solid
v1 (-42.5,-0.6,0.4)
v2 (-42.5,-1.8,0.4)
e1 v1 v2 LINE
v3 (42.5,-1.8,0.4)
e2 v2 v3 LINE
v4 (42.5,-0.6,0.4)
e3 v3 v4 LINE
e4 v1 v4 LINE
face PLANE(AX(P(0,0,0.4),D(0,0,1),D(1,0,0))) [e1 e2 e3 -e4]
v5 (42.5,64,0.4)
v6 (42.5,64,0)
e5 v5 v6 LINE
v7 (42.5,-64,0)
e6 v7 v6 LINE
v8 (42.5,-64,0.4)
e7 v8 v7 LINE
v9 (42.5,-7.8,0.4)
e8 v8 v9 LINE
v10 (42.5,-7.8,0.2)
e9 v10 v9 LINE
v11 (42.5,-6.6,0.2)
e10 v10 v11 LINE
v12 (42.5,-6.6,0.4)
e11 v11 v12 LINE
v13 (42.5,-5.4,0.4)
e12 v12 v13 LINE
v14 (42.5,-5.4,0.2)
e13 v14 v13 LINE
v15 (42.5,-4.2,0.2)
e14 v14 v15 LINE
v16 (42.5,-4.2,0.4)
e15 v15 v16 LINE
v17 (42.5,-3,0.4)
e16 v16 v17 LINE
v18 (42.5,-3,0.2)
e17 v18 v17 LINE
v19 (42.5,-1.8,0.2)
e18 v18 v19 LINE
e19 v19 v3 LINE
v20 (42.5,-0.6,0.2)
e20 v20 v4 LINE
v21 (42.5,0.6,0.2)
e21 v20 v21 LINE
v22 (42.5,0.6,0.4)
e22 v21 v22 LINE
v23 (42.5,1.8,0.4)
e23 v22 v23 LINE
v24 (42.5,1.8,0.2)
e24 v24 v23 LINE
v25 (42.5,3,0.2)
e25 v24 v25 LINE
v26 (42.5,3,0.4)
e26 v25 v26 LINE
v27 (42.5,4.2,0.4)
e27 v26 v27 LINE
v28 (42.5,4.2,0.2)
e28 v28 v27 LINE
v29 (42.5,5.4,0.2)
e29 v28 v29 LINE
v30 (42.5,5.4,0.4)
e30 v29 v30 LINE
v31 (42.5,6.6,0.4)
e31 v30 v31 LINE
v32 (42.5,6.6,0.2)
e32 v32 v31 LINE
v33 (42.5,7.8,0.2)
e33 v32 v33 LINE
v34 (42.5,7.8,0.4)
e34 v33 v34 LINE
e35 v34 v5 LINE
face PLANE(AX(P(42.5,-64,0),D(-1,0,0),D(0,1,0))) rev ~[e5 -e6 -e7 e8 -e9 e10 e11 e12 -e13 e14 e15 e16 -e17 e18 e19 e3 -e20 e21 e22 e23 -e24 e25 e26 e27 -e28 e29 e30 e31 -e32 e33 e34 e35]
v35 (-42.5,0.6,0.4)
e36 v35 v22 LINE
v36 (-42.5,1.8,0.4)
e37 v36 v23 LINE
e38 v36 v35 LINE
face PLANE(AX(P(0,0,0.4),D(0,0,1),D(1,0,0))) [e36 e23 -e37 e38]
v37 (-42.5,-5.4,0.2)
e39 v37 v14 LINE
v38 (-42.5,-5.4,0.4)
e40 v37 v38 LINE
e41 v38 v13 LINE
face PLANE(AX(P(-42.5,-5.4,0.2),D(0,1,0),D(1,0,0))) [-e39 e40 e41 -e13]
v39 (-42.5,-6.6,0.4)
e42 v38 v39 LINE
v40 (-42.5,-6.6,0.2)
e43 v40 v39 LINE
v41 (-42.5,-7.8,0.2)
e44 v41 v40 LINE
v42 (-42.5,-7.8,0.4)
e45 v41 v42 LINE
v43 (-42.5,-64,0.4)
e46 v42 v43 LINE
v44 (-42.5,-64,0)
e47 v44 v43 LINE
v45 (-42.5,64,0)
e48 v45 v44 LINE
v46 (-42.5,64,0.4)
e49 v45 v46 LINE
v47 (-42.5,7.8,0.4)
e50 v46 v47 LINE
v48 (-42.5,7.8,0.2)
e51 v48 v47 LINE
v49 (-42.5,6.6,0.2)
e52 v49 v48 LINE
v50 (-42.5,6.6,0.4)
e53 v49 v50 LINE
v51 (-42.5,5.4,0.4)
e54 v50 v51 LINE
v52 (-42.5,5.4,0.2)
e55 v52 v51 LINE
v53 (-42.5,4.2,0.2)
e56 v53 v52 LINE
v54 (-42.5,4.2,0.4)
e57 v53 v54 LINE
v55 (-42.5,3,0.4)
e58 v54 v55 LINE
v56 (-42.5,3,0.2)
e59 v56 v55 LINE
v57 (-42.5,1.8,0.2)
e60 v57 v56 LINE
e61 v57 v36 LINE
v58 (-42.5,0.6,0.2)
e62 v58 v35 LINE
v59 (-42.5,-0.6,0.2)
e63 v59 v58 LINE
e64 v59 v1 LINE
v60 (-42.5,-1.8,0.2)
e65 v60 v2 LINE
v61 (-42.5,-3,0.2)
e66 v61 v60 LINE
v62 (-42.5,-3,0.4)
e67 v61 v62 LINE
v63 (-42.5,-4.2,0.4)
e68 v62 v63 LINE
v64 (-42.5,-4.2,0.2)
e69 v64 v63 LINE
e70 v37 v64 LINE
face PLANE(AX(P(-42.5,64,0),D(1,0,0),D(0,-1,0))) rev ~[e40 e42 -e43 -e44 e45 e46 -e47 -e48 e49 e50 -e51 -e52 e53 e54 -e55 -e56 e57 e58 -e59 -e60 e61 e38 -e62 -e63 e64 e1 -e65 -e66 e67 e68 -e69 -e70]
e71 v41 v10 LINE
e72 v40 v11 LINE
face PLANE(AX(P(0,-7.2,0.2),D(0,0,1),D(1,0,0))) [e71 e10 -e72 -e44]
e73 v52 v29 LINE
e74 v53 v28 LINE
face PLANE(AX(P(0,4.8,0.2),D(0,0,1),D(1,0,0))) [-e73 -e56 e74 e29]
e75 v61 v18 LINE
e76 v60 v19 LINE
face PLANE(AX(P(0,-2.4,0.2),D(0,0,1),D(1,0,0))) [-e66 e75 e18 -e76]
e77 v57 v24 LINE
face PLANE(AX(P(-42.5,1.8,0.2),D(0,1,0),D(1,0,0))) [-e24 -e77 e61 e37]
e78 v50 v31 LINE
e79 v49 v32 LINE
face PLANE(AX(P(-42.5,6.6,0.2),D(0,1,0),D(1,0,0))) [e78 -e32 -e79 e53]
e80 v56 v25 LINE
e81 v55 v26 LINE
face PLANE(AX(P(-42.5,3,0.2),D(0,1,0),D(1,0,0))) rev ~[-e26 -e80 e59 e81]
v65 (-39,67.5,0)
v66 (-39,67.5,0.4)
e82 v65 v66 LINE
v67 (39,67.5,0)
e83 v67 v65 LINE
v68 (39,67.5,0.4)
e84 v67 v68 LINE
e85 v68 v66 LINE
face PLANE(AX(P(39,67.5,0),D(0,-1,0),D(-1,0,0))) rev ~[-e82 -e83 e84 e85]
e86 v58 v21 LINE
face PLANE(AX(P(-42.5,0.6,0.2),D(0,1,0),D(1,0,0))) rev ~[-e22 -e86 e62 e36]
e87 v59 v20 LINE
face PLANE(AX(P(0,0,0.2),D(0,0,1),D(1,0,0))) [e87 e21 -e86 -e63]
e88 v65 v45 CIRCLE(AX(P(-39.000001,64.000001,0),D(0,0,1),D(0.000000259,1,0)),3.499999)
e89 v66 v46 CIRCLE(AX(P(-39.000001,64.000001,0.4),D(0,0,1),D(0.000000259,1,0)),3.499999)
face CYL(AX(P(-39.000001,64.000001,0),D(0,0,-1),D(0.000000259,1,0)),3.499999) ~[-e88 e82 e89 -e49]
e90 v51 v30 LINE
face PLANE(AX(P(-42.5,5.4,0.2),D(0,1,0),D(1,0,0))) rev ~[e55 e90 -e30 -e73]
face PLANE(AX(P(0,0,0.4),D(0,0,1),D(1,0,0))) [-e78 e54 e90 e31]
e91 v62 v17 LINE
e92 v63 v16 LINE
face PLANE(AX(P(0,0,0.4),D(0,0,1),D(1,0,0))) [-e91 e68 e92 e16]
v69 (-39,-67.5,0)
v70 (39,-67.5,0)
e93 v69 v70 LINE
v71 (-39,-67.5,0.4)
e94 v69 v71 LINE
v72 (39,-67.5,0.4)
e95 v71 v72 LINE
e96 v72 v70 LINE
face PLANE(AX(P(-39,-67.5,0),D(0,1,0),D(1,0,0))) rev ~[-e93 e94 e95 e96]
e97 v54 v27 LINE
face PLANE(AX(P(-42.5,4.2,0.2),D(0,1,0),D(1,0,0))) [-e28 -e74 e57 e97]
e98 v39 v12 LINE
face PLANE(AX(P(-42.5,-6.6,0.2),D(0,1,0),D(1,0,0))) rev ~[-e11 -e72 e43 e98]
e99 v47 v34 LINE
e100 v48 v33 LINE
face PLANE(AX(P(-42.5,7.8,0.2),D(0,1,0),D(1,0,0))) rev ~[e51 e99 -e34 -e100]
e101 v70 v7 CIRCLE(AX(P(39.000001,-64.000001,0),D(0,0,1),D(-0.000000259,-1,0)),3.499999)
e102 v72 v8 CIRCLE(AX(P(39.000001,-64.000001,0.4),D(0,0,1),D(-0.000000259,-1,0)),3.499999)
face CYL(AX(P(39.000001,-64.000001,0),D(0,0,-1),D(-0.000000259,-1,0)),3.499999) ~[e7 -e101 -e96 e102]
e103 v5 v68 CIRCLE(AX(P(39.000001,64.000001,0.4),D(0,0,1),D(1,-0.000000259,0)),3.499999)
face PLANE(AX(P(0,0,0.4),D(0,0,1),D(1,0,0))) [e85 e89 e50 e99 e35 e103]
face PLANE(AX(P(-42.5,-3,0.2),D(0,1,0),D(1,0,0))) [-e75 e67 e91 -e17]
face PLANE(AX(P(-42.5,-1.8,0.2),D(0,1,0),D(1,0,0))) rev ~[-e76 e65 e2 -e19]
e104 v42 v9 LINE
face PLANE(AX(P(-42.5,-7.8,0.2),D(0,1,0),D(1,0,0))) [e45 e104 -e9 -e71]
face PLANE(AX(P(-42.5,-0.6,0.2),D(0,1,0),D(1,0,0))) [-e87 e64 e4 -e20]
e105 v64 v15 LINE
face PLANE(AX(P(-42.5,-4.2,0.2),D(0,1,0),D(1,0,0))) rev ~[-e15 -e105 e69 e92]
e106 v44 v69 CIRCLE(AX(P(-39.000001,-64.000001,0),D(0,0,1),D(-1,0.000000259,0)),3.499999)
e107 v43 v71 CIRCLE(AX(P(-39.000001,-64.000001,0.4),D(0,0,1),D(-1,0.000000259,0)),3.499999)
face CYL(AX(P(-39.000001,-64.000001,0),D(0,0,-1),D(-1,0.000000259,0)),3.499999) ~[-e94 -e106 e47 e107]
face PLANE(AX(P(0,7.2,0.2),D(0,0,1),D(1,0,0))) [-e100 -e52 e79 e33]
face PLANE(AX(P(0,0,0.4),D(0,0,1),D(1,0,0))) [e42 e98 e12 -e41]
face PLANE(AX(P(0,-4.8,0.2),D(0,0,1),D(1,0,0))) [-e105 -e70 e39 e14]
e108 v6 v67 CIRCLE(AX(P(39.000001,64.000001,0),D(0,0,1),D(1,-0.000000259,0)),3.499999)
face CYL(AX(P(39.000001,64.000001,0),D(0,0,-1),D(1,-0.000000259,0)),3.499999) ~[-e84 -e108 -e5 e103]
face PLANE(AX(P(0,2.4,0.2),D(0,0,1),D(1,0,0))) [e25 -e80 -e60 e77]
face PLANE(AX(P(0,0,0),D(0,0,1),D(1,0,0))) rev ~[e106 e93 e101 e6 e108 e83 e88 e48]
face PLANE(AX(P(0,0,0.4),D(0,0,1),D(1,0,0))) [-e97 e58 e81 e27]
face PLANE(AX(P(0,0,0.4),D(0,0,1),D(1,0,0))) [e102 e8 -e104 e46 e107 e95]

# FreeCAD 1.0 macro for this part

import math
import FreeCAD as App
import Part
import Sketcher


def add_polygon(sketch, points):
    """Adds a closed chain of lines whose ends are joined by coincident constraints."""
    first, n = sketch.GeometryCount, len(points)
    for a, b in zip(points, points[1:] + points[:1]):
        sketch.addGeometry(Part.LineSegment(App.Vector(*a, 0), App.Vector(*b, 0)), False)
    for i in range(n):
        sketch.addConstraint(Sketcher.Constraint("Coincident", first + i, 2, first + (i + 1) % n, 1))

doc = App.newDocument("Part")
body = doc.addObject("PartDesign::Body", "Body")

# Sketch on XY plane
sketch1 = body.newObject("Sketcher::SketchObject", "Sketch")
sketch1.AttachmentSupport = (doc.getObject("XY_Plane"), [""])
sketch1.MapMode = "FlatFace"
sketch1.addGeometry([
    Part.ArcOfCircle(Part.Circle(App.Vector(39.000001, 64.000001, 0), App.Vector(0, 0, 1), 3.499999), math.radians(-0.000015), math.radians(90.000015)),  # 0
    Part.LineSegment(App.Vector(39, 67.5, 0), App.Vector(-39, 67.5, 0)),  # 1
    Part.ArcOfCircle(Part.Circle(App.Vector(-39.000001, 64.000001, 0), App.Vector(0, 0, 1), 3.499999), math.radians(89.999985), math.radians(180.000015)),  # 2
    Part.LineSegment(App.Vector(-42.5, 64, 0), App.Vector(-42.5, -64, 0)),  # 3
    Part.ArcOfCircle(Part.Circle(App.Vector(-39.000001, -64.000001, 0), App.Vector(0, 0, 1), 3.499999), math.radians(179.999985), math.radians(270.000015)),  # 4
    Part.LineSegment(App.Vector(-39, -67.5, 0), App.Vector(39, -67.5, 0)),  # 5
    Part.ArcOfCircle(Part.Circle(App.Vector(39.000001, -64.000001, 0), App.Vector(0, 0, 1), 3.499999), math.radians(-90.000015), math.radians(0.000015)),  # 6
    Part.LineSegment(App.Vector(42.5, -64, 0), App.Vector(42.5, 64, 0)),  # 7
], False)
sketch1.addConstraint([
    Sketcher.Constraint("Tangent", 0, 2, 1, 1),
    Sketcher.Constraint("Tangent", 1, 2, 2, 1),
    Sketcher.Constraint("Tangent", 2, 2, 3, 1),
    Sketcher.Constraint("Tangent", 3, 2, 4, 1),
    Sketcher.Constraint("Tangent", 4, 2, 5, 1),
    Sketcher.Constraint("Tangent", 5, 2, 6, 1),
    Sketcher.Constraint("Tangent", 6, 2, 7, 1),
    Sketcher.Constraint("Tangent", 7, 2, 0, 1),
    Sketcher.Constraint("Horizontal", 1),
    Sketcher.Constraint("Vertical", 3),
    Sketcher.Constraint("Horizontal", 5),
    Sketcher.Constraint("Vertical", 7),
    Sketcher.Constraint("Equal", 0, 2),
    Sketcher.Constraint("Equal", 2, 4),
    Sketcher.Constraint("Equal", 4, 6),
    Sketcher.Constraint("Symmetric", 0, 3, 4, 3, -1, 1),
    Sketcher.Constraint("Radius", 0, 3.499999),
    Sketcher.Constraint("DistanceX", 1, 2, 1, 1, 78.0),
    Sketcher.Constraint("DistanceY", 3, 2, 3, 1, 128.0),
])
pad1 = body.newObject("PartDesign::Pad", "Pad")
pad1.Profile = sketch1
pad1.Length = 0.2

# Sketch on XY plane
sketch2 = body.newObject("Sketcher::SketchObject", "Sketch001")
sketch2.AttachmentSupport = (doc.getObject("XY_Plane"), [""])
sketch2.MapMode = "FlatFace"
sketch2.addGeometry([
    Part.ArcOfCircle(Part.Circle(App.Vector(39.000001, 64.000001, 0), App.Vector(0, 0, 1), 3.499999), math.radians(-0.000015), math.radians(90.000015)),  # 0
    Part.LineSegment(App.Vector(39, 67.5, 0), App.Vector(-39, 67.5, 0)),  # 1
    Part.ArcOfCircle(Part.Circle(App.Vector(-39.000001, 64.000001, 0), App.Vector(0, 0, 1), 3.499999), math.radians(89.999985), math.radians(180.000015)),  # 2
    Part.LineSegment(App.Vector(-42.5, 64, 0), App.Vector(-42.5, -64, 0)),  # 3
    Part.ArcOfCircle(Part.Circle(App.Vector(-39.000001, -64.000001, 0), App.Vector(0, 0, 1), 3.499999), math.radians(179.999985), math.radians(270.000015)),  # 4
    Part.LineSegment(App.Vector(-39, -67.5, 0), App.Vector(39, -67.5, 0)),  # 5
    Part.ArcOfCircle(Part.Circle(App.Vector(39.000001, -64.000001, 0), App.Vector(0, 0, 1), 3.499999), math.radians(-90.000015), math.radians(0.000015)),  # 6
    Part.LineSegment(App.Vector(42.5, -64, 0), App.Vector(42.5, 64, 0)),  # 7
], False)
sketch2.addConstraint([
    Sketcher.Constraint("Tangent", 0, 2, 1, 1),
    Sketcher.Constraint("Tangent", 1, 2, 2, 1),
    Sketcher.Constraint("Tangent", 2, 2, 3, 1),
    Sketcher.Constraint("Tangent", 3, 2, 4, 1),
    Sketcher.Constraint("Tangent", 4, 2, 5, 1),
    Sketcher.Constraint("Tangent", 5, 2, 6, 1),
    Sketcher.Constraint("Tangent", 6, 2, 7, 1),
    Sketcher.Constraint("Tangent", 7, 2, 0, 1),
    Sketcher.Constraint("Horizontal", 1),
    Sketcher.Constraint("Vertical", 3),
    Sketcher.Constraint("Horizontal", 5),
    Sketcher.Constraint("Vertical", 7),
    Sketcher.Constraint("Equal", 0, 2),
    Sketcher.Constraint("Equal", 2, 4),
    Sketcher.Constraint("Equal", 4, 6),
    Sketcher.Constraint("Symmetric", 0, 3, 4, 3, -1, 1),
    Sketcher.Constraint("Radius", 0, 3.499999),
    Sketcher.Constraint("DistanceX", 1, 2, 1, 1, 78.0),
    Sketcher.Constraint("DistanceY", 3, 2, 3, 1, 128.0),
])
pad2 = body.newObject("PartDesign::Pad", "Pad001")
pad2.Profile = sketch2
pad2.Length = 0.4

# Sketch on XY plane
sketch3 = body.newObject("Sketcher::SketchObject", "Sketch002")
sketch3.AttachmentSupport = (doc.getObject("XY_Plane"), [""])
sketch3.MapMode = "FlatFace"
sketch3.AttachmentOffset = App.Placement(App.Vector(0, 0, 0.2), App.Rotation())
add_polygon(sketch3, [(-42.5, 0.6), (-42.5, -0.6), (42.5, -0.6), (42.5, 0.6)])  # lines 0-3
add_polygon(sketch3, [(-42.5, 3), (-42.5, 1.8), (42.5, 1.8), (42.5, 3)])  # lines 4-7
add_polygon(sketch3, [(-42.5, 5.4), (-42.5, 4.2), (42.5, 4.2), (42.5, 5.4)])  # lines 8-11
add_polygon(sketch3, [(-42.5, -1.8), (-42.5, -3), (42.5, -3), (42.5, -1.8)])  # lines 12-15
add_polygon(sketch3, [(-42.5, -4.2), (-42.5, -5.4), (42.5, -5.4), (42.5, -4.2)])  # lines 16-19
add_polygon(sketch3, [(-42.5, 7.8), (-42.5, 6.6), (42.5, 6.6), (42.5, 7.8)])  # lines 20-23
add_polygon(sketch3, [(-42.5, -6.6), (-42.5, -7.8), (42.5, -7.8), (42.5, -6.6)])  # lines 24-27
sketch3.addConstraint([
    Sketcher.Constraint("Vertical", 0),
    Sketcher.Constraint("Horizontal", 1),
    Sketcher.Constraint("Vertical", 2),
    Sketcher.Constraint("Horizontal", 3),
    Sketcher.Constraint("Vertical", 4),
    Sketcher.Constraint("Horizontal", 5),
    Sketcher.Constraint("Vertical", 6),
    Sketcher.Constraint("Horizontal", 7),
    Sketcher.Constraint("Vertical", 8),
    Sketcher.Constraint("Horizontal", 9),
    Sketcher.Constraint("Vertical", 10),
    Sketcher.Constraint("Horizontal", 11),
    Sketcher.Constraint("Vertical", 12),
    Sketcher.Constraint("Horizontal", 13),
    Sketcher.Constraint("Vertical", 14),
    Sketcher.Constraint("Horizontal", 15),
    Sketcher.Constraint("Vertical", 16),
    Sketcher.Constraint("Horizontal", 17),
    Sketcher.Constraint("Vertical", 18),
    Sketcher.Constraint("Horizontal", 19),
    Sketcher.Constraint("Vertical", 20),
    Sketcher.Constraint("Horizontal", 21),
    Sketcher.Constraint("Vertical", 22),
    Sketcher.Constraint("Horizontal", 23),
    Sketcher.Constraint("Vertical", 24),
    Sketcher.Constraint("Horizontal", 25),
    Sketcher.Constraint("Vertical", 26),
    Sketcher.Constraint("Horizontal", 27),
    Sketcher.Constraint("Symmetric", 0, 2, 2, 2, -1, 1),
    Sketcher.Constraint("Symmetric", 6, 2, 12, 2, -1, 1),
    Sketcher.Constraint("Symmetric", 4, 2, 14, 2, -1, 1),
    Sketcher.Constraint("Symmetric", 10, 2, 16, 2, -1, 1),
    Sketcher.Constraint("Symmetric", 8, 2, 18, 2, -1, 1),
    Sketcher.Constraint("Symmetric", 22, 2, 24, 2, -1, 1),
    Sketcher.Constraint("Symmetric", 20, 2, 26, 2, -1, 1),
    Sketcher.Constraint("Vertical", 3, 2, 4, 2),
    Sketcher.Constraint("Vertical", 2, 2, 5, 2),
    Sketcher.Constraint("Vertical", 7, 2, 8, 2),
    Sketcher.Constraint("Vertical", 6, 2, 9, 2),
    Sketcher.Constraint("Vertical", 19, 2, 20, 2),
    Sketcher.Constraint("Vertical", 18, 2, 21, 2),
    Sketcher.Constraint("Equal", 2, 4),
    Sketcher.Constraint("Equal", 6, 8),
    Sketcher.Constraint("Equal", 18, 20),
    Sketcher.Constraint("DistanceX", 1, 1, 1, 2, 85.0),
    Sketcher.Constraint("DistanceY", 0, 2, 0, 1, 1.2),
    Sketcher.Constraint("DistanceY", -1, 1, 6, 2, 3.0),
    Sketcher.Constraint("DistanceY", 1, 2, 10, 2, 6.0),
    Sketcher.Constraint("DistanceY", 3, 2, 20, 2, 6.0),
])
pocket1 = body.newObject("PartDesign::Pocket", "Pocket")
pocket1.Profile = sketch3
pocket1.Type = "ThroughAll"
pocket1.Reversed = True

doc.recompute()
